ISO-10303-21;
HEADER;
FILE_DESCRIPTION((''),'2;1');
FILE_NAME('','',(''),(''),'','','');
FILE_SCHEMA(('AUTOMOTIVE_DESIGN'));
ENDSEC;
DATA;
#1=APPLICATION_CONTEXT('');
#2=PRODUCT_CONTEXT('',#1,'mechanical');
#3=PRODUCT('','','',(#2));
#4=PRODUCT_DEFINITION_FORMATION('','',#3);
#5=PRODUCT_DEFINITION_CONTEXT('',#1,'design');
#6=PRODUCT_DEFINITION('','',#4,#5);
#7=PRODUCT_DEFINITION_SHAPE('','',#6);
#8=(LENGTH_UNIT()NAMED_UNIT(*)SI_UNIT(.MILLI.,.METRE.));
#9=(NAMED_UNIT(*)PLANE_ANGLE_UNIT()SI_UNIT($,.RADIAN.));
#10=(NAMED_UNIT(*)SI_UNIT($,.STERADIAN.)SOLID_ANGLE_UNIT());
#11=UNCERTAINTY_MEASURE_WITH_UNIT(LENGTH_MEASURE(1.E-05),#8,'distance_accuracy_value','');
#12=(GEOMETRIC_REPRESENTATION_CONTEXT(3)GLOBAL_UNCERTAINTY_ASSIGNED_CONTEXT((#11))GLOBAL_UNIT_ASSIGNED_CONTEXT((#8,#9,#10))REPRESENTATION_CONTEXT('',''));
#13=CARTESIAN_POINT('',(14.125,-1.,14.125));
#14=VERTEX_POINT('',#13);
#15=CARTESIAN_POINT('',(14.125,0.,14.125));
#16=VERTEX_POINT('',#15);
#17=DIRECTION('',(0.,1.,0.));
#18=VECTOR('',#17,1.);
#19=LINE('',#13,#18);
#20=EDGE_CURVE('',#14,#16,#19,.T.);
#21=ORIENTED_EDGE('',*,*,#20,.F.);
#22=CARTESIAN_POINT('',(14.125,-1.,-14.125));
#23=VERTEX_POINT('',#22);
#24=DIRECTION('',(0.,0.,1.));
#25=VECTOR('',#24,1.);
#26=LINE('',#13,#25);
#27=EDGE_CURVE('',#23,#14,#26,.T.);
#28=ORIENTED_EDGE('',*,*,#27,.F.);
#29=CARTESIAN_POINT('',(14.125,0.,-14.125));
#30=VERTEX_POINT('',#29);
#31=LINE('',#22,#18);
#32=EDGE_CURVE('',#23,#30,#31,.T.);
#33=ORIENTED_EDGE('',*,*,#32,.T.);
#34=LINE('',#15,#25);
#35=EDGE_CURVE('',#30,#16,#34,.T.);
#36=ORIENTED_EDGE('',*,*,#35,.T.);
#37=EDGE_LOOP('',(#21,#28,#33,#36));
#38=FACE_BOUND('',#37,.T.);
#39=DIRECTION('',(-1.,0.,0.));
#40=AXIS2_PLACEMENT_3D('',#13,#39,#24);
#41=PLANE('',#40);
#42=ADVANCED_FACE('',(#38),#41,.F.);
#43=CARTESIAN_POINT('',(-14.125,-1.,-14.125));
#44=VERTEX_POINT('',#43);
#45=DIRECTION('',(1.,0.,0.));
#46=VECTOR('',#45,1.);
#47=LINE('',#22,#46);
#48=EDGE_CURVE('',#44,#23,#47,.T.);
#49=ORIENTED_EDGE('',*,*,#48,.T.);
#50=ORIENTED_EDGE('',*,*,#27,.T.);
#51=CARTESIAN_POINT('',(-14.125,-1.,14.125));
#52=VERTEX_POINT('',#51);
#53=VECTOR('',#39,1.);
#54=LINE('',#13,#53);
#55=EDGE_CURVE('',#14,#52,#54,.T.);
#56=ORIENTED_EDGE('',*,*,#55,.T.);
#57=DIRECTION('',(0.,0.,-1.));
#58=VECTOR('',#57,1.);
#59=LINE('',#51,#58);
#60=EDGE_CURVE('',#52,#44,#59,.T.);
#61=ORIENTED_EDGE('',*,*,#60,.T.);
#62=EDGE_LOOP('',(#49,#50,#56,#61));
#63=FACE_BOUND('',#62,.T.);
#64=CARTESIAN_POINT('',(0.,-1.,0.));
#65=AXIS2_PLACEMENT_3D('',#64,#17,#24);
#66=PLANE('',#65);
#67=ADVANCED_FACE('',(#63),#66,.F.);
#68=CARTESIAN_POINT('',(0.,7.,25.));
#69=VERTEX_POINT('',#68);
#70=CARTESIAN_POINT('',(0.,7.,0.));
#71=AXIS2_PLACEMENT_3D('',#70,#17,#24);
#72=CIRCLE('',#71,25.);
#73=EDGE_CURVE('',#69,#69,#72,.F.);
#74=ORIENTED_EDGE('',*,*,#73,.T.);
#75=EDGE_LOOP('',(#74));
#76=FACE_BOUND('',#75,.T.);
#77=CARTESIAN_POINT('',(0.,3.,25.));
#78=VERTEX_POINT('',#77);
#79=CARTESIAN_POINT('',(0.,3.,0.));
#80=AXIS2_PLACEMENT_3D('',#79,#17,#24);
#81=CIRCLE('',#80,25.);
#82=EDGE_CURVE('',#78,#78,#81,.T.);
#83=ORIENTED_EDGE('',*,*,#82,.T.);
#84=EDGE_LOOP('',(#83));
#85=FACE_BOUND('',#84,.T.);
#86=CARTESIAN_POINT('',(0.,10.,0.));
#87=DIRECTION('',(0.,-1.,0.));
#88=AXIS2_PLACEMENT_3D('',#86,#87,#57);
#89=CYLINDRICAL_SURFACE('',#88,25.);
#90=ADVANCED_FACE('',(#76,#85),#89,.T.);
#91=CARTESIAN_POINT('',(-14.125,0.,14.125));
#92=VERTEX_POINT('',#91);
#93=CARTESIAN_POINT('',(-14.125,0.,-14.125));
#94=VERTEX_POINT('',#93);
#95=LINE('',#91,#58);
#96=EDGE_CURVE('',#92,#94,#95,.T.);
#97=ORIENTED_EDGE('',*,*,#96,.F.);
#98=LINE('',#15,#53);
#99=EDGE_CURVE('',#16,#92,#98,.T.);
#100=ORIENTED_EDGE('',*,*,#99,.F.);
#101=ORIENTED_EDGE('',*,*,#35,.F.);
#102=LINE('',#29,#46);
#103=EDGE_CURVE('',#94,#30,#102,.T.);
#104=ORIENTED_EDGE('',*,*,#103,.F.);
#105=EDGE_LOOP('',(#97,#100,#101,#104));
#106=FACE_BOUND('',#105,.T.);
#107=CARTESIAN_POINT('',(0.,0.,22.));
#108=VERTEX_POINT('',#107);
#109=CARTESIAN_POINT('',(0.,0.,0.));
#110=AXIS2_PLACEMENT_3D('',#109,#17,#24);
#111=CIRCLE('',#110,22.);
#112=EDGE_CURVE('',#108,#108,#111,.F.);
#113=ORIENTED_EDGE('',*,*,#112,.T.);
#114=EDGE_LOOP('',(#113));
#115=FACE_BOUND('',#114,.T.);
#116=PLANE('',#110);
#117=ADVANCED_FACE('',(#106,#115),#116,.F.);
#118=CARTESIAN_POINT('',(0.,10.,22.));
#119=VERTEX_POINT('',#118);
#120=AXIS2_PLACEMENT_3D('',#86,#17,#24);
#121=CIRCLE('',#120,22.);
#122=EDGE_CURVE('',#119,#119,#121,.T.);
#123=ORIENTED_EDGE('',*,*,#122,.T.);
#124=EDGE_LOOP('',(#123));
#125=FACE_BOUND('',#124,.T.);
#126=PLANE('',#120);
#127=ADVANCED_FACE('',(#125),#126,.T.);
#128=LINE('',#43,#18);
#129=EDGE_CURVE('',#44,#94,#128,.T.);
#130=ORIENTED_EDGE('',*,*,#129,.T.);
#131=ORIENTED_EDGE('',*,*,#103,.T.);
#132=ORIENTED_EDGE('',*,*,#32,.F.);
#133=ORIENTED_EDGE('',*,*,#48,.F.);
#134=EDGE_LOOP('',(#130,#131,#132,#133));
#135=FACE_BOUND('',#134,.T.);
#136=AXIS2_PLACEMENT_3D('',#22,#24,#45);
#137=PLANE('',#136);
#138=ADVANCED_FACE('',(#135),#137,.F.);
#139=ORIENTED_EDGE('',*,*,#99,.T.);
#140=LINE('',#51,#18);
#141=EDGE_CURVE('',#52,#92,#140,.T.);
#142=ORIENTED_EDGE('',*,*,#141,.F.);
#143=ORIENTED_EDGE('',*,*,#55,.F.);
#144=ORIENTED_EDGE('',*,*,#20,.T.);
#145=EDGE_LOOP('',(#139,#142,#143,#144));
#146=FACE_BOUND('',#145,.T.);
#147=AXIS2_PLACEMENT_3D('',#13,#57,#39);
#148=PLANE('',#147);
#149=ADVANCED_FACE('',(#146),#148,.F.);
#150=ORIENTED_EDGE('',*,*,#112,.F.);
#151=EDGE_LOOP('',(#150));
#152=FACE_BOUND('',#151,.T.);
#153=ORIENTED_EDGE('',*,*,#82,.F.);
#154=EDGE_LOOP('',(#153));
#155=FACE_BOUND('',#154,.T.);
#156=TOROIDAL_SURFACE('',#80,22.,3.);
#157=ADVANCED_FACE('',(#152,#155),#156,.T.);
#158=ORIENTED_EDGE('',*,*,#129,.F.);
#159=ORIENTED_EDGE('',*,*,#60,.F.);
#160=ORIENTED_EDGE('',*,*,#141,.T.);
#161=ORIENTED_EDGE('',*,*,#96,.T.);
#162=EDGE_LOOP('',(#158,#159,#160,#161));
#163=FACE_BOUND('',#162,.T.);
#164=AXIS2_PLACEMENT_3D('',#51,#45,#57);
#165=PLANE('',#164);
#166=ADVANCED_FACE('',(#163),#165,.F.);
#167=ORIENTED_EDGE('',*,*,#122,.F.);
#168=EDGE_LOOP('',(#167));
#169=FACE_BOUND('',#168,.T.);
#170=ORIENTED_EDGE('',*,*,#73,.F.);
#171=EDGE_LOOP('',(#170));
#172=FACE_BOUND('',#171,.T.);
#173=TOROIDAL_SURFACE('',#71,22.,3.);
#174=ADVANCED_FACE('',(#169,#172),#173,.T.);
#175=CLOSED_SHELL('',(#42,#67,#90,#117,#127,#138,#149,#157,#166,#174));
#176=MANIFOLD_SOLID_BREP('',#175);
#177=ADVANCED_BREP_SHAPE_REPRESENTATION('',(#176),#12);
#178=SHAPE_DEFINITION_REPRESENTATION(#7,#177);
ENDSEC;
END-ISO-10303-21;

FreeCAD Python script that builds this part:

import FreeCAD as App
import Part
import Sketcher
Q = App.Units.Quantity


def edges_at(feature, points):
    """Names of the edges that pass closest to the given points."""
    edges = feature.Shape.Edges
    near = lambda p: min(range(len(edges)), key=lambda i: edges[i].distToShape(Part.Vertex(*p))[0])
    return sorted({f"Edge{near(p) + 1}" for p in points})


def add_polygon(sketch, points):
    """Adds a closed chain of lines whose ends are joined by coincident constraints."""
    first, n = sketch.GeometryCount, len(points)
    for a, b in zip(points, points[1:] + points[:1]):
        sketch.addGeometry(Part.LineSegment(App.Vector(*a, 0), App.Vector(*b, 0)), False)
    for i in range(n):
        sketch.addConstraint(Sketcher.Constraint("Coincident", first + i, 2, first + (i + 1) % n, 1))

doc = App.newDocument("Part")
body = doc.addObject("PartDesign::Body", "Body")

# Sketch on XZ plane
sketch1 = doc.addObject("Sketcher::SketchObject", "Sketch")
body.addObject(sketch1)
sketch1.AttachmentSupport = (doc.XZ_Plane, [""])
sketch1.MapMode = "FlatFace"
sketch1.addGeometry(Part.Circle(App.Vector(0, 0, 0), App.Vector(0, 0, 1), 25), False)
sketch1.addConstraint([
    Sketcher.Constraint("Coincident", 0, 3, -1, 1),
    Sketcher.Constraint("Diameter", 0, Q("50 mm")),
])
pad1 = doc.addObject("PartDesign::Pad", "Pad")
body.addObject(pad1)
pad1.Profile = sketch1
pad1.Length = 10
pad1.Reversed = True
doc.recompute()

fillet = doc.addObject("PartDesign::Fillet", "Fillet")
body.addObject(fillet)
fillet.Base = (pad1, edges_at(pad1, [(0, 0, -25), (0, 10, -25)]))
fillet.Radius = 3

# Sketch on XZ plane
sketch2 = doc.addObject("Sketcher::SketchObject", "Sketch001")
body.addObject(sketch2)
sketch2.AttachmentSupport = (doc.XZ_Plane, [""])
sketch2.MapMode = "FlatFace"
add_polygon(sketch2, [(14.125, -14.125), (14.125, 14.125), (-14.125, 14.125), (-14.125, -14.125)])  # lines 0-3
sketch2.addConstraint([
    Sketcher.Constraint("Vertical", 0),
    Sketcher.Constraint("Horizontal", 1),
    Sketcher.Constraint("Vertical", 2),
    Sketcher.Constraint("Horizontal", 3),
    Sketcher.Constraint("Symmetric", 0, 2, 2, 2, -1, 1),
    Sketcher.Constraint("Equal", 3, 0),
    Sketcher.Constraint("DistanceX", 1, 2, 1, 1, Q("28.25 mm")),
])
pad2 = doc.addObject("PartDesign::Pad", "Pad001")
body.addObject(pad2)
pad2.Profile = sketch2
pad2.Length = 1

doc.recompute()
